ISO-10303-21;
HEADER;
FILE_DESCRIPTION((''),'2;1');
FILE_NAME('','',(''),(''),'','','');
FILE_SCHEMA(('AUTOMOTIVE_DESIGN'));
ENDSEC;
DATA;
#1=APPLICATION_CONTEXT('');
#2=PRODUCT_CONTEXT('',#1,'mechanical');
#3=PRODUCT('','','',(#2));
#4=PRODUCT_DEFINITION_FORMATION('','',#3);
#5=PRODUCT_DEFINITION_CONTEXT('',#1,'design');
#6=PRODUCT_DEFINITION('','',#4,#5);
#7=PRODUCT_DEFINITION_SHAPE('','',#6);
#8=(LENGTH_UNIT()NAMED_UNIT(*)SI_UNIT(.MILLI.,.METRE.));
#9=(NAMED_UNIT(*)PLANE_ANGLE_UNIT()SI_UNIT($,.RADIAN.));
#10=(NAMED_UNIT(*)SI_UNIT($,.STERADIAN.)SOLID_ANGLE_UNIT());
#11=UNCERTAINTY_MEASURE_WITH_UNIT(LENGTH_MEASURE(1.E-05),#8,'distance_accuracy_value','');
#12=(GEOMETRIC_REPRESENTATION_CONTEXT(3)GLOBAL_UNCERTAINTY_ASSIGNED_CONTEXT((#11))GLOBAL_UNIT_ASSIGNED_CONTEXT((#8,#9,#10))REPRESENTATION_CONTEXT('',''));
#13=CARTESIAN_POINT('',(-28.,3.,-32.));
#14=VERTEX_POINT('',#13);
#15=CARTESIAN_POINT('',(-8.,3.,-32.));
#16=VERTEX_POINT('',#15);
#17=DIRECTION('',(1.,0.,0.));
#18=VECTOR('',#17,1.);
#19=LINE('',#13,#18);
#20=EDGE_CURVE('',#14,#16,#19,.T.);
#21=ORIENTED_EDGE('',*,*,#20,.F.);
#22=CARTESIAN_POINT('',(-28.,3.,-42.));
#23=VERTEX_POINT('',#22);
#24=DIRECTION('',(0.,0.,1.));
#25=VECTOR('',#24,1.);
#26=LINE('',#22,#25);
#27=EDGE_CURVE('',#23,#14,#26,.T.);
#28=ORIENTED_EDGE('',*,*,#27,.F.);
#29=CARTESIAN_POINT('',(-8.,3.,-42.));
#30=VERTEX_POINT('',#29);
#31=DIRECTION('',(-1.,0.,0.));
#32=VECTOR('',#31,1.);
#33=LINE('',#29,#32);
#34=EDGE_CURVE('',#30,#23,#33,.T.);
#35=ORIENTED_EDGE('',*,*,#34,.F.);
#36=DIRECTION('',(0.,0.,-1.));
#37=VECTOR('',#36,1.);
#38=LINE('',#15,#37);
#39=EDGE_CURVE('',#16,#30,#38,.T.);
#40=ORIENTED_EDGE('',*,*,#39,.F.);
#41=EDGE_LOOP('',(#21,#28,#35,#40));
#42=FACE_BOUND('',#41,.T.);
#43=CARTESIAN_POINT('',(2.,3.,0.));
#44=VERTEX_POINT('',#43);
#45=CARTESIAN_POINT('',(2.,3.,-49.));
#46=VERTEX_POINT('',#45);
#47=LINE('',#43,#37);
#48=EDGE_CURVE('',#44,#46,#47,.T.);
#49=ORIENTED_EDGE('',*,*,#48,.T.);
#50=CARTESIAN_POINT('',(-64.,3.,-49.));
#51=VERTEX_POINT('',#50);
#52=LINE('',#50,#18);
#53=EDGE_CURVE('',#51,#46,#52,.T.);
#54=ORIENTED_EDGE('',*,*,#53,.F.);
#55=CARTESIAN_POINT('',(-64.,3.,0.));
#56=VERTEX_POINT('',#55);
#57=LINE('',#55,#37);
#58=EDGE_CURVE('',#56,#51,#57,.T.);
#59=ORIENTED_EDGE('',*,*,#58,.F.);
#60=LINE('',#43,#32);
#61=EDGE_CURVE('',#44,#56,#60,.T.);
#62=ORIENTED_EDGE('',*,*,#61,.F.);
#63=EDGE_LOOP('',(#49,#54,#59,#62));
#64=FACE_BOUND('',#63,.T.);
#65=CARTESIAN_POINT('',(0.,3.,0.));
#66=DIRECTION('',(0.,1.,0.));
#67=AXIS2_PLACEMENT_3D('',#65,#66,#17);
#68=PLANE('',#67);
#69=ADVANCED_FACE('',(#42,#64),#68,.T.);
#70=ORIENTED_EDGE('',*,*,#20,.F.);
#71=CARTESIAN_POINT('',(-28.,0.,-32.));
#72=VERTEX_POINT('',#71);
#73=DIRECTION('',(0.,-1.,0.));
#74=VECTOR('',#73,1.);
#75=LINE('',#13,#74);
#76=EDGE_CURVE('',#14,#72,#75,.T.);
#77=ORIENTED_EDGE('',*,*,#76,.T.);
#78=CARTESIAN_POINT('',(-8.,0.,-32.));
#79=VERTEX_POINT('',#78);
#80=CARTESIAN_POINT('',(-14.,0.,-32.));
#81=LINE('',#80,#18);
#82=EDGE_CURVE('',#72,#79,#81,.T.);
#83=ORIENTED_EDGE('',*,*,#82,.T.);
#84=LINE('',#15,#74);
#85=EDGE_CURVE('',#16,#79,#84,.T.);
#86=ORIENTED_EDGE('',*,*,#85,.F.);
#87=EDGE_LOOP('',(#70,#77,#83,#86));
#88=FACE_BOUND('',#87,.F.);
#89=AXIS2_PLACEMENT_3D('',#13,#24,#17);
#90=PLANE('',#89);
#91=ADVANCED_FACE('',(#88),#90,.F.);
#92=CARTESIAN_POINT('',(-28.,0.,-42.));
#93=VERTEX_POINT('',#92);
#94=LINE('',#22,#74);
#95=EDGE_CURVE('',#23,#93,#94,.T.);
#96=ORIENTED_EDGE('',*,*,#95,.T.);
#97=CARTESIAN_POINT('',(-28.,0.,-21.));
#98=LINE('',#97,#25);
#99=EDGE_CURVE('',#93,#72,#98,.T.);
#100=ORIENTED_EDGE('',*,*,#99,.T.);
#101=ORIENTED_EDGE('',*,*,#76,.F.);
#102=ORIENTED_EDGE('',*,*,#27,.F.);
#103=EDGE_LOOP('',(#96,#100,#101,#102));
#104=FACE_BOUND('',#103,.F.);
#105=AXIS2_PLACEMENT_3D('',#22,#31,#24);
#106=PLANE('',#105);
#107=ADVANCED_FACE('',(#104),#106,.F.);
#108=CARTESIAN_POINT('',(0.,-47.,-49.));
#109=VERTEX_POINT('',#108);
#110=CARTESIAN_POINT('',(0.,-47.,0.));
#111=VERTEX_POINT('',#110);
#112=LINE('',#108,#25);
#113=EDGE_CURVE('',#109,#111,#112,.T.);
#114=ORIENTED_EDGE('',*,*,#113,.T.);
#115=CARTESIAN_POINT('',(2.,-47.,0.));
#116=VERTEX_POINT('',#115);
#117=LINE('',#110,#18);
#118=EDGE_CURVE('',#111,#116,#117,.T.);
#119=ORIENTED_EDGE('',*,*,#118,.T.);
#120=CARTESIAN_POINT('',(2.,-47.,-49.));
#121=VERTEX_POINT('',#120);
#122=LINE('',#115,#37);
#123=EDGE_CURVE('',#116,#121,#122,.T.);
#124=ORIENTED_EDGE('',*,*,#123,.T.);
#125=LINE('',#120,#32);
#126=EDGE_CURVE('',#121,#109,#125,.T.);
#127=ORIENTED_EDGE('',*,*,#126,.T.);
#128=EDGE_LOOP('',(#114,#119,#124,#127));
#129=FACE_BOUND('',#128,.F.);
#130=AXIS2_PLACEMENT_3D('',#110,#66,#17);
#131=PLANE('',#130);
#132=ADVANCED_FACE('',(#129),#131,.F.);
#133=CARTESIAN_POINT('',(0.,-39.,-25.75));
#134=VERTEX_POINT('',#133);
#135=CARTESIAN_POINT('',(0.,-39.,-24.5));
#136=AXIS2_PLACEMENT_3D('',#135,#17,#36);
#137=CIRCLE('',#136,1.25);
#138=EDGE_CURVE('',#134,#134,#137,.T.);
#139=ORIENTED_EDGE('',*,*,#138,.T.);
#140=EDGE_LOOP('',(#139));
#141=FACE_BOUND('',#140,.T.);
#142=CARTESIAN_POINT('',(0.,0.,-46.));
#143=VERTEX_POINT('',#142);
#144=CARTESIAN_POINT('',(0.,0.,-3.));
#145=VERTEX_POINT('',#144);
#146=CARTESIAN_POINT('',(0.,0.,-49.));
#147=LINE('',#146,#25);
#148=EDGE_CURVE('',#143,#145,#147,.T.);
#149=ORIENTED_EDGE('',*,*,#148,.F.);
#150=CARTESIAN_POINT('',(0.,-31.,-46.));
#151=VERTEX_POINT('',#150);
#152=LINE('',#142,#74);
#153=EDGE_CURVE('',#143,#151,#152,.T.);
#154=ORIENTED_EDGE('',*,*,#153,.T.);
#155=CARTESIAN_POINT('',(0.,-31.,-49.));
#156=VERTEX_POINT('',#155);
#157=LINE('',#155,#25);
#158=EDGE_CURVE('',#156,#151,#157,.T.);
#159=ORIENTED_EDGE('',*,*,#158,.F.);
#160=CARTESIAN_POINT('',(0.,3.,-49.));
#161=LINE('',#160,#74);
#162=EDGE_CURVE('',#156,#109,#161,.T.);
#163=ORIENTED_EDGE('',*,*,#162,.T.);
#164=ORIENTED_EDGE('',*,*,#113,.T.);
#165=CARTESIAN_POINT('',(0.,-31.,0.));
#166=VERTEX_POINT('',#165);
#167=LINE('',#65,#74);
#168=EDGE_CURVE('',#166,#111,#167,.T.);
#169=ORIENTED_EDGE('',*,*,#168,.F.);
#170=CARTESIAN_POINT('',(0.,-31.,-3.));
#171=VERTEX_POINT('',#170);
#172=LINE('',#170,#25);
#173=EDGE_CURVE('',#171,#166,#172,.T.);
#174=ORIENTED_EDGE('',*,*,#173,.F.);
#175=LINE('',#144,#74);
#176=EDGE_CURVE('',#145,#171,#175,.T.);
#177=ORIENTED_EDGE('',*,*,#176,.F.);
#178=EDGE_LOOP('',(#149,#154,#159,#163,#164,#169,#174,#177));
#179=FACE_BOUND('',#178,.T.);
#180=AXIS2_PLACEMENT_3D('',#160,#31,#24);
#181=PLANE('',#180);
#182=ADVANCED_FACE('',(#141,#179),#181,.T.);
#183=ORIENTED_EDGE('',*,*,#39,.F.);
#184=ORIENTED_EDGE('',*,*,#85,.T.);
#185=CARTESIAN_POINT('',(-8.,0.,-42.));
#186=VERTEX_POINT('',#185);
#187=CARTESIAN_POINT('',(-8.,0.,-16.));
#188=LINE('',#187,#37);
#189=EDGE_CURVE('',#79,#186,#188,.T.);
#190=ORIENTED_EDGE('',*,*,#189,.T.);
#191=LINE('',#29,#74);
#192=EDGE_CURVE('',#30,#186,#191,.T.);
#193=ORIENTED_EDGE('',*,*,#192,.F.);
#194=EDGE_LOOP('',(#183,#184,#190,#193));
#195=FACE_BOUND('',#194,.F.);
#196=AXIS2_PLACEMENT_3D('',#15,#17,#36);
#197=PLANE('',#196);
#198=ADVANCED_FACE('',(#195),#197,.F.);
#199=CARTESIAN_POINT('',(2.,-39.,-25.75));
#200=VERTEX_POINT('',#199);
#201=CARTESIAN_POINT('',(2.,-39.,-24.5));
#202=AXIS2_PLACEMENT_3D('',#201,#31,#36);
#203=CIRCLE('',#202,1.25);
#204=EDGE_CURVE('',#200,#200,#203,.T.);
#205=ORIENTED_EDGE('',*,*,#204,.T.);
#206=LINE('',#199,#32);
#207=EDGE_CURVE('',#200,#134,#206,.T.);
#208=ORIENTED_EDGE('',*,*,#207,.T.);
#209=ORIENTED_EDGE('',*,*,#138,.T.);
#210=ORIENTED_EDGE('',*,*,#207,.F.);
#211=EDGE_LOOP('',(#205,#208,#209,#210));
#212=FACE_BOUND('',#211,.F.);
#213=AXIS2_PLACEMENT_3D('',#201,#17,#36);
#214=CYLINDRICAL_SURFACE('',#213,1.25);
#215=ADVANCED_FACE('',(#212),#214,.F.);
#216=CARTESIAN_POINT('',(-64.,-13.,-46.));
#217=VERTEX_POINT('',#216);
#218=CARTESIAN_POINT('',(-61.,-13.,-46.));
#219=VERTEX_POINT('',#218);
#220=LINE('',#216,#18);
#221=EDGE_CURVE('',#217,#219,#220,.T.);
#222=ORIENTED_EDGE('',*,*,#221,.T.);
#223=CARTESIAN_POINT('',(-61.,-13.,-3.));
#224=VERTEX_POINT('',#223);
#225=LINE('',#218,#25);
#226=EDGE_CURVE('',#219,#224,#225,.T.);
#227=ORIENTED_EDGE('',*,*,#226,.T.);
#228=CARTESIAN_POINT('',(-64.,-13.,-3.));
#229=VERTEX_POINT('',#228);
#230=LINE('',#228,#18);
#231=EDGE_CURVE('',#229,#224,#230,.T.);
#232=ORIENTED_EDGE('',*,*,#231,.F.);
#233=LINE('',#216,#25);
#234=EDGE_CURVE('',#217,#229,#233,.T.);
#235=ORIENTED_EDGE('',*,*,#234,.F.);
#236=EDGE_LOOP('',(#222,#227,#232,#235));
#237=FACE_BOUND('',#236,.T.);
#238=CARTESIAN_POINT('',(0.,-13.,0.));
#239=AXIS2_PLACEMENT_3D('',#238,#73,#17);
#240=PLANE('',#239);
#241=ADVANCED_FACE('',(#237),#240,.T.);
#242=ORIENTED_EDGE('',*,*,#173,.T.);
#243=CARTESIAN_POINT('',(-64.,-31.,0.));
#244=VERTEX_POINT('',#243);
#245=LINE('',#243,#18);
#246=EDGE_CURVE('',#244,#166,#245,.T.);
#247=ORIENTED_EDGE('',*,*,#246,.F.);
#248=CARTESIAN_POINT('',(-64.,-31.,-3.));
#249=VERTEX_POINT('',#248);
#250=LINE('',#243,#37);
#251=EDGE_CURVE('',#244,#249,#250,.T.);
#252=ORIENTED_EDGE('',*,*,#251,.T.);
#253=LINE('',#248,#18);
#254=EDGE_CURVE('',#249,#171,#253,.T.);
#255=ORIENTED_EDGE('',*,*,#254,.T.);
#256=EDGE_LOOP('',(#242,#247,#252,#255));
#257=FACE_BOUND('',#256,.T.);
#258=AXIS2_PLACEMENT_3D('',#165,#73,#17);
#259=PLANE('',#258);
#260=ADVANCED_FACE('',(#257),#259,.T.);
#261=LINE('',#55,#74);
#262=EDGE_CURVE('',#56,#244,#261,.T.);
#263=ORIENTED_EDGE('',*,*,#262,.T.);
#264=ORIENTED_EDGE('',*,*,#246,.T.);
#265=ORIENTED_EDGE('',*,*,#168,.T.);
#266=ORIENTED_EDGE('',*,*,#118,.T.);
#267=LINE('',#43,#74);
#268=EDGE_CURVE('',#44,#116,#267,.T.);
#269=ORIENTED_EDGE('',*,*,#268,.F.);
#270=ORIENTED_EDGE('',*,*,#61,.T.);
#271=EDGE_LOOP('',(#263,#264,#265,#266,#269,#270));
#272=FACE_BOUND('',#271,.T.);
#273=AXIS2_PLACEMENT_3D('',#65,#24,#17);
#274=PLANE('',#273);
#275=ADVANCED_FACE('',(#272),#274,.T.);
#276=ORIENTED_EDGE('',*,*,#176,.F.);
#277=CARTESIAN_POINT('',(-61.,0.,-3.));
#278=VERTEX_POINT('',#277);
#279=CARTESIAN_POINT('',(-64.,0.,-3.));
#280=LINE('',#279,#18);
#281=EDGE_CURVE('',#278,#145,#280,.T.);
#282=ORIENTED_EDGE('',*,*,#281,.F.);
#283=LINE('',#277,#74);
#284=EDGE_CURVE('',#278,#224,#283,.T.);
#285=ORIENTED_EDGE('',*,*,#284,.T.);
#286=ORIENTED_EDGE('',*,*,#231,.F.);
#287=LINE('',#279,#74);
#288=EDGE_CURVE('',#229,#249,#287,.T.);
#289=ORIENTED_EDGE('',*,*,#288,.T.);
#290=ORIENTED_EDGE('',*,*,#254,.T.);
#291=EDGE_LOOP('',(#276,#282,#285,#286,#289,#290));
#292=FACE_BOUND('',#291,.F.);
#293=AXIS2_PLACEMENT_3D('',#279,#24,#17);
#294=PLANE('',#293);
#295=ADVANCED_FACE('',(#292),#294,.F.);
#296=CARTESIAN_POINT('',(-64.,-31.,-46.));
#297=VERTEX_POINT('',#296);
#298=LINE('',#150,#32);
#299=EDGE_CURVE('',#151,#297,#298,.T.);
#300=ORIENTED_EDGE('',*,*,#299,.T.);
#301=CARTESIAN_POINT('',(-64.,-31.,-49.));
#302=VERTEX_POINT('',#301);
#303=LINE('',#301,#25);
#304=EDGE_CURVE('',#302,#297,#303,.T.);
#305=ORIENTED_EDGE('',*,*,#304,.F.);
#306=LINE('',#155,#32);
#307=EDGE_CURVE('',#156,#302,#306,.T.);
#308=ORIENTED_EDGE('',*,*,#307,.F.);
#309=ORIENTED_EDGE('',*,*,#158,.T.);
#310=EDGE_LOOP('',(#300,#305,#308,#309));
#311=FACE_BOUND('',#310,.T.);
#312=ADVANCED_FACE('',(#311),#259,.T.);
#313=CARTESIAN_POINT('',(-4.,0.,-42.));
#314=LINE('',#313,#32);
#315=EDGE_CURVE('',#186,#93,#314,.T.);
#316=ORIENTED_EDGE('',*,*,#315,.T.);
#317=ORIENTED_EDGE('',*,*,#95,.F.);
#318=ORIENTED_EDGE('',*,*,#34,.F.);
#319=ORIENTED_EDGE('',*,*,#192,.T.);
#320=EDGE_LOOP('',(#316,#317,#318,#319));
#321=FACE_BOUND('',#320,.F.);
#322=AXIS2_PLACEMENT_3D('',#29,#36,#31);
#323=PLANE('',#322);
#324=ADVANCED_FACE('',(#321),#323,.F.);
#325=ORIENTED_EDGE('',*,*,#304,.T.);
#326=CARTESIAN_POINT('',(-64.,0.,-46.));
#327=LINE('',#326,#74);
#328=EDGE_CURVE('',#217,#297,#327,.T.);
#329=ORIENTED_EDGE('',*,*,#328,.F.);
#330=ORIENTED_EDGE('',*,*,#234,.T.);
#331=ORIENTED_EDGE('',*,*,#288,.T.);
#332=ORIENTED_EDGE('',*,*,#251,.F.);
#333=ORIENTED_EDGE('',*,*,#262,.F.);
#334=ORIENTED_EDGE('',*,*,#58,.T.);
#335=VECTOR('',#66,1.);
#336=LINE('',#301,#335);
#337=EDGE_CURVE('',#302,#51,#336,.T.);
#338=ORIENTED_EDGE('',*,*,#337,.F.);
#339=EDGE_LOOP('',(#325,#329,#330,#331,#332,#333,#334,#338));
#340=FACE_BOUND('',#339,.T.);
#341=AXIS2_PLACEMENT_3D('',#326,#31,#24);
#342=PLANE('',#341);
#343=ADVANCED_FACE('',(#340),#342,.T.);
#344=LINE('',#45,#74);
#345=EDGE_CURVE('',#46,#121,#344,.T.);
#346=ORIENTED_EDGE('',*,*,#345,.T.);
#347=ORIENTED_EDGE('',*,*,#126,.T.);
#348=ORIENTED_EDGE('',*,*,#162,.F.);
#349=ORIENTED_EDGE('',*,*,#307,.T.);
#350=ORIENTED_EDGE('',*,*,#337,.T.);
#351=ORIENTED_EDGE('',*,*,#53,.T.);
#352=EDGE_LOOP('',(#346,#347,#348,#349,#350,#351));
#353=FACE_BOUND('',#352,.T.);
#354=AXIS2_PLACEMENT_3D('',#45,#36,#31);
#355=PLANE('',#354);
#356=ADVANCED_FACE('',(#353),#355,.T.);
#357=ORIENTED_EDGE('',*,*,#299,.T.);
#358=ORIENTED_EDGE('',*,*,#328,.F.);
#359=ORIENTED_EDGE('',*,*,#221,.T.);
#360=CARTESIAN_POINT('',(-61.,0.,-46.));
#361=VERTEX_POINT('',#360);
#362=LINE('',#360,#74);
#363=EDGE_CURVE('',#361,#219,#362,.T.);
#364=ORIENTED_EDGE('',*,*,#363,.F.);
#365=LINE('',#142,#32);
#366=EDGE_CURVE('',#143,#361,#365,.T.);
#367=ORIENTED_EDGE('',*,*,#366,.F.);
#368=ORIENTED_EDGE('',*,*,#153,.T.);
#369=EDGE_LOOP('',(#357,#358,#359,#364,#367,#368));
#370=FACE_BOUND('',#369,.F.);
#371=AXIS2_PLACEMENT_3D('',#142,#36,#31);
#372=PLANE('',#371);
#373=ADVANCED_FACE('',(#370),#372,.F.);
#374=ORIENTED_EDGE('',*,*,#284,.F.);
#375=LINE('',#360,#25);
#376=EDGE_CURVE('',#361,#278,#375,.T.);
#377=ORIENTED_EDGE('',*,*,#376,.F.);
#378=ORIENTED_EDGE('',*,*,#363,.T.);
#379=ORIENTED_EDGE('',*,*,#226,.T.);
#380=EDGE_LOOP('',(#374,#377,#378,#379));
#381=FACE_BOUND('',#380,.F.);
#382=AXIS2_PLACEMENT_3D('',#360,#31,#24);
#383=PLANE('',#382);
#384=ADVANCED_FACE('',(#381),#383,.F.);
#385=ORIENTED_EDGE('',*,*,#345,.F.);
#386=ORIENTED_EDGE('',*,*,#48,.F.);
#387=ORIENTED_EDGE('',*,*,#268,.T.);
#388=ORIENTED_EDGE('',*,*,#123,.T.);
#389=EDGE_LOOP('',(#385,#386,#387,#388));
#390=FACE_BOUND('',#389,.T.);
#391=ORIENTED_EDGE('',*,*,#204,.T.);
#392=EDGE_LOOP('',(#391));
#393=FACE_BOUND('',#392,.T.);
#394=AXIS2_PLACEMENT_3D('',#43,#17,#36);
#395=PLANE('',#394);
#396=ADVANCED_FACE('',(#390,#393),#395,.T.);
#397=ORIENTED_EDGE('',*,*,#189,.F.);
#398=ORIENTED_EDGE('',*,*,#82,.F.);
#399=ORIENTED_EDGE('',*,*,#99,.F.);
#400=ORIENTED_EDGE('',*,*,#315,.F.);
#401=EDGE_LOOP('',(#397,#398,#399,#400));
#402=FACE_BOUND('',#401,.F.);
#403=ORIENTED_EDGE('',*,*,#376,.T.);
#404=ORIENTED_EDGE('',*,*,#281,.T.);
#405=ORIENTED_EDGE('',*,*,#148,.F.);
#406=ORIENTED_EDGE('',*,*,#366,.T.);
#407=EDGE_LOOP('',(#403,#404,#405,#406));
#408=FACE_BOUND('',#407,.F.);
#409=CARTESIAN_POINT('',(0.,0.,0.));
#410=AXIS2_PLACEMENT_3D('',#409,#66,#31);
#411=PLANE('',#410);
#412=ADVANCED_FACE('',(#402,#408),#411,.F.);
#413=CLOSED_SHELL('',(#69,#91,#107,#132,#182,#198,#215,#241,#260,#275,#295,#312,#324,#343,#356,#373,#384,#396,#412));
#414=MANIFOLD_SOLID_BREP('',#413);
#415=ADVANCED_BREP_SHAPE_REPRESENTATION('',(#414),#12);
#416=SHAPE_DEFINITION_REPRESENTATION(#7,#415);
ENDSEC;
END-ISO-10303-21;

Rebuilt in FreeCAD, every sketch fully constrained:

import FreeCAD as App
import Part
import Sketcher
from FreeCAD import Vector


def add_polygon(sketch, points):
    """Adds a closed chain of lines whose ends are joined by coincident constraints."""
    first, n = sketch.GeometryCount, len(points)
    for a, b in zip(points, points[1:] + points[:1]):
        sketch.addGeometry(Part.LineSegment(App.Vector(*a, 0), App.Vector(*b, 0)), False)
    for i in range(n):
        sketch.addConstraint(Sketcher.Constraint("Coincident", first + i, 2, first + (i + 1) % n, 1))

doc = App.newDocument("Part")
body = doc.addObject("PartDesign::Body", "Body")

# Sketch on XZ plane
sketch1 = body.newObject("Sketcher::SketchObject", "Sketch")
sketch1.AttachmentSupport = (doc.getObject("XZ_Plane"), [""])
sketch1.MapMode = "FlatFace"
add_polygon(sketch1, [(-64, 0), (0, 0), (0, -49), (-64, -49)])  # lines 0-3
sketch1.addConstraint([
    Sketcher.Constraint("Horizontal", 0),
    Sketcher.Constraint("Vertical", 1),
    Sketcher.Constraint("Horizontal", 2),
    Sketcher.Constraint("Vertical", 3),
    Sketcher.Constraint("Coincident", 0, 2, -1, 1),
    Sketcher.Constraint("DistanceX", 0, 1, 0, 2, 64.0),
    Sketcher.Constraint("DistanceY", 1, 2, 1, 1, 49.0),
])
pad1 = body.newObject("PartDesign::Pad", "Pad")
pad1.Profile = sketch1
pad1.Length = 3
pad1.Reversed = True

# Sketch on XZ plane
sketch2 = body.newObject("Sketcher::SketchObject", "Sketch001")
sketch2.AttachmentSupport = (doc.getObject("XZ_Plane"), [""])
sketch2.MapMode = "FlatFace"
add_polygon(sketch2, [(0, 0), (-64, 0), (-64, -3), (0, -3)])  # lines 0-3
sketch2.addConstraint([
    Sketcher.Constraint("Horizontal", 0),
    Sketcher.Constraint("Vertical", 1),
    Sketcher.Constraint("Horizontal", 2),
    Sketcher.Constraint("Vertical", 3),
    Sketcher.Constraint("Coincident", 3, 2, -1, 1),
    Sketcher.Constraint("DistanceY", 1, 2, 1, 1, 3.0),
    Sketcher.Constraint("DistanceX", 0, 2, 0, 1, 64.0),
])
pad2 = body.newObject("PartDesign::Pad", "Pad001")
pad2.Profile = sketch2
pad2.Length = 31

# Sketch on XZ plane
sketch3 = body.newObject("Sketcher::SketchObject", "Sketch002")
sketch3.AttachmentSupport = (doc.getObject("XZ_Plane"), [""])
sketch3.MapMode = "FlatFace"
add_polygon(sketch3, [(-64, -49), (0, -49), (0, -46), (-64, -46)])  # lines 0-3
sketch3.addConstraint([
    Sketcher.Constraint("Horizontal", 0),
    Sketcher.Constraint("Vertical", 1),
    Sketcher.Constraint("Horizontal", 2),
    Sketcher.Constraint("Vertical", 3),
    Sketcher.Constraint("PointOnObject", 0, 2, -2),
    Sketcher.Constraint("DistanceY", 1, 1, 1, 2, 3.0),
    Sketcher.Constraint("DistanceX", 0, 1, 0, 2, 64.0),
    Sketcher.Constraint("DistanceY", 0, 2, -1, 1, 49.0),
])
pad3 = body.newObject("PartDesign::Pad", "Pad002")
pad3.Profile = sketch3
pad3.Length = 31

# Sketch on XZ plane
sketch4 = body.newObject("Sketcher::SketchObject", "Sketch003")
sketch4.AttachmentSupport = (doc.getObject("XZ_Plane"), [""])
sketch4.MapMode = "FlatFace"
sketch4.AttachmentOffset = App.Placement(Vector(0, 0, -3), App.Rotation())
add_polygon(sketch4, [(-8, -32), (-8, -42), (-28, -42), (-28, -32)])  # lines 0-3
sketch4.addConstraint([
    Sketcher.Constraint("Vertical", 0),
    Sketcher.Constraint("Horizontal", 1),
    Sketcher.Constraint("Vertical", 2),
    Sketcher.Constraint("Horizontal", 3),
    Sketcher.Constraint("DistanceX", 1, 2, 1, 1, 20.0),
    Sketcher.Constraint("DistanceY", 0, 2, 0, 1, 10.0),
    Sketcher.Constraint("DistanceX", 0, 2, -1, 1, 8.0),
    Sketcher.Constraint("DistanceY", 0, 2, -1, 1, 42.0),
])
pocket1 = body.newObject("PartDesign::Pocket", "Pocket")
pocket1.Profile = sketch4
pocket1.Length = 31
pocket1.Reversed = True

# Sketch on XZ plane
sketch5 = body.newObject("Sketcher::SketchObject", "Sketch004")
sketch5.AttachmentSupport = (doc.getObject("XZ_Plane"), [""])
sketch5.MapMode = "FlatFace"
sketch5.AttachmentOffset = App.Placement(Vector(0, 0, -3), App.Rotation())
add_polygon(sketch5, [(0, -49), (0, 0), (2, 0), (2, -49)])  # lines 0-3
sketch5.addConstraint([
    Sketcher.Constraint("Vertical", 0),
    Sketcher.Constraint("Horizontal", 1),
    Sketcher.Constraint("Vertical", 2),
    Sketcher.Constraint("Horizontal", 3),
    Sketcher.Constraint("Coincident", 0, 2, -1, 1),
    Sketcher.Constraint("DistanceX", 1, 1, 1, 2, 2.0),
    Sketcher.Constraint("DistanceY", 0, 1, 0, 2, 49.0),
])
pad4 = body.newObject("PartDesign::Pad", "Pad003")
pad4.Profile = sketch5
pad4.Length = 50

# Sketch on XZ plane
sketch6 = body.newObject("Sketcher::SketchObject", "Sketch005")
sketch6.AttachmentSupport = (doc.getObject("XZ_Plane"), [""])
sketch6.MapMode = "FlatFace"
add_polygon(sketch6, [(-64, -3), (-64, -46), (-61, -46), (-61, -3)])  # lines 0-3
sketch6.addConstraint([
    Sketcher.Constraint("Vertical", 0),
    Sketcher.Constraint("Horizontal", 1),
    Sketcher.Constraint("Vertical", 2),
    Sketcher.Constraint("Horizontal", 3),
    Sketcher.Constraint("DistanceX", 1, 1, 1, 2, 3.0),
    Sketcher.Constraint("DistanceY", 2, 2, -1, 1, 3.0),
    Sketcher.Constraint("DistanceY", 0, 2, 0, 1, 43.0),
    Sketcher.Constraint("DistanceX", 0, 2, -1, 1, 64.0),
])
pad5 = body.newObject("PartDesign::Pad", "Pad004")
pad5.Profile = sketch6
pad5.Length = 13

# Sketch on YZ plane
sketch7 = body.newObject("Sketcher::SketchObject", "Sketch006")
sketch7.AttachmentSupport = (doc.getObject("YZ_Plane"), [""])
sketch7.MapMode = "FlatFace"
sketch7.AttachmentOffset = App.Placement(Vector(0, 0, 2), App.Rotation())
sketch7.addGeometry(Part.Circle(Vector(-39, -24.5, 0), Vector(0, 0, 1), 1.2), False)
sketch7.addConstraint([
    Sketcher.Constraint("Diameter", 0, 2.5),
    Sketcher.Constraint("DistanceY", 0, 3, -1, 1, 24.5),
    Sketcher.Constraint("DistanceX", 0, 3, -1, 1, 39.0),
])
pocket2 = body.newObject("PartDesign::Pocket", "Pocket001")
pocket2.Profile = sketch7
pocket2.Length = 13

doc.recompute()
